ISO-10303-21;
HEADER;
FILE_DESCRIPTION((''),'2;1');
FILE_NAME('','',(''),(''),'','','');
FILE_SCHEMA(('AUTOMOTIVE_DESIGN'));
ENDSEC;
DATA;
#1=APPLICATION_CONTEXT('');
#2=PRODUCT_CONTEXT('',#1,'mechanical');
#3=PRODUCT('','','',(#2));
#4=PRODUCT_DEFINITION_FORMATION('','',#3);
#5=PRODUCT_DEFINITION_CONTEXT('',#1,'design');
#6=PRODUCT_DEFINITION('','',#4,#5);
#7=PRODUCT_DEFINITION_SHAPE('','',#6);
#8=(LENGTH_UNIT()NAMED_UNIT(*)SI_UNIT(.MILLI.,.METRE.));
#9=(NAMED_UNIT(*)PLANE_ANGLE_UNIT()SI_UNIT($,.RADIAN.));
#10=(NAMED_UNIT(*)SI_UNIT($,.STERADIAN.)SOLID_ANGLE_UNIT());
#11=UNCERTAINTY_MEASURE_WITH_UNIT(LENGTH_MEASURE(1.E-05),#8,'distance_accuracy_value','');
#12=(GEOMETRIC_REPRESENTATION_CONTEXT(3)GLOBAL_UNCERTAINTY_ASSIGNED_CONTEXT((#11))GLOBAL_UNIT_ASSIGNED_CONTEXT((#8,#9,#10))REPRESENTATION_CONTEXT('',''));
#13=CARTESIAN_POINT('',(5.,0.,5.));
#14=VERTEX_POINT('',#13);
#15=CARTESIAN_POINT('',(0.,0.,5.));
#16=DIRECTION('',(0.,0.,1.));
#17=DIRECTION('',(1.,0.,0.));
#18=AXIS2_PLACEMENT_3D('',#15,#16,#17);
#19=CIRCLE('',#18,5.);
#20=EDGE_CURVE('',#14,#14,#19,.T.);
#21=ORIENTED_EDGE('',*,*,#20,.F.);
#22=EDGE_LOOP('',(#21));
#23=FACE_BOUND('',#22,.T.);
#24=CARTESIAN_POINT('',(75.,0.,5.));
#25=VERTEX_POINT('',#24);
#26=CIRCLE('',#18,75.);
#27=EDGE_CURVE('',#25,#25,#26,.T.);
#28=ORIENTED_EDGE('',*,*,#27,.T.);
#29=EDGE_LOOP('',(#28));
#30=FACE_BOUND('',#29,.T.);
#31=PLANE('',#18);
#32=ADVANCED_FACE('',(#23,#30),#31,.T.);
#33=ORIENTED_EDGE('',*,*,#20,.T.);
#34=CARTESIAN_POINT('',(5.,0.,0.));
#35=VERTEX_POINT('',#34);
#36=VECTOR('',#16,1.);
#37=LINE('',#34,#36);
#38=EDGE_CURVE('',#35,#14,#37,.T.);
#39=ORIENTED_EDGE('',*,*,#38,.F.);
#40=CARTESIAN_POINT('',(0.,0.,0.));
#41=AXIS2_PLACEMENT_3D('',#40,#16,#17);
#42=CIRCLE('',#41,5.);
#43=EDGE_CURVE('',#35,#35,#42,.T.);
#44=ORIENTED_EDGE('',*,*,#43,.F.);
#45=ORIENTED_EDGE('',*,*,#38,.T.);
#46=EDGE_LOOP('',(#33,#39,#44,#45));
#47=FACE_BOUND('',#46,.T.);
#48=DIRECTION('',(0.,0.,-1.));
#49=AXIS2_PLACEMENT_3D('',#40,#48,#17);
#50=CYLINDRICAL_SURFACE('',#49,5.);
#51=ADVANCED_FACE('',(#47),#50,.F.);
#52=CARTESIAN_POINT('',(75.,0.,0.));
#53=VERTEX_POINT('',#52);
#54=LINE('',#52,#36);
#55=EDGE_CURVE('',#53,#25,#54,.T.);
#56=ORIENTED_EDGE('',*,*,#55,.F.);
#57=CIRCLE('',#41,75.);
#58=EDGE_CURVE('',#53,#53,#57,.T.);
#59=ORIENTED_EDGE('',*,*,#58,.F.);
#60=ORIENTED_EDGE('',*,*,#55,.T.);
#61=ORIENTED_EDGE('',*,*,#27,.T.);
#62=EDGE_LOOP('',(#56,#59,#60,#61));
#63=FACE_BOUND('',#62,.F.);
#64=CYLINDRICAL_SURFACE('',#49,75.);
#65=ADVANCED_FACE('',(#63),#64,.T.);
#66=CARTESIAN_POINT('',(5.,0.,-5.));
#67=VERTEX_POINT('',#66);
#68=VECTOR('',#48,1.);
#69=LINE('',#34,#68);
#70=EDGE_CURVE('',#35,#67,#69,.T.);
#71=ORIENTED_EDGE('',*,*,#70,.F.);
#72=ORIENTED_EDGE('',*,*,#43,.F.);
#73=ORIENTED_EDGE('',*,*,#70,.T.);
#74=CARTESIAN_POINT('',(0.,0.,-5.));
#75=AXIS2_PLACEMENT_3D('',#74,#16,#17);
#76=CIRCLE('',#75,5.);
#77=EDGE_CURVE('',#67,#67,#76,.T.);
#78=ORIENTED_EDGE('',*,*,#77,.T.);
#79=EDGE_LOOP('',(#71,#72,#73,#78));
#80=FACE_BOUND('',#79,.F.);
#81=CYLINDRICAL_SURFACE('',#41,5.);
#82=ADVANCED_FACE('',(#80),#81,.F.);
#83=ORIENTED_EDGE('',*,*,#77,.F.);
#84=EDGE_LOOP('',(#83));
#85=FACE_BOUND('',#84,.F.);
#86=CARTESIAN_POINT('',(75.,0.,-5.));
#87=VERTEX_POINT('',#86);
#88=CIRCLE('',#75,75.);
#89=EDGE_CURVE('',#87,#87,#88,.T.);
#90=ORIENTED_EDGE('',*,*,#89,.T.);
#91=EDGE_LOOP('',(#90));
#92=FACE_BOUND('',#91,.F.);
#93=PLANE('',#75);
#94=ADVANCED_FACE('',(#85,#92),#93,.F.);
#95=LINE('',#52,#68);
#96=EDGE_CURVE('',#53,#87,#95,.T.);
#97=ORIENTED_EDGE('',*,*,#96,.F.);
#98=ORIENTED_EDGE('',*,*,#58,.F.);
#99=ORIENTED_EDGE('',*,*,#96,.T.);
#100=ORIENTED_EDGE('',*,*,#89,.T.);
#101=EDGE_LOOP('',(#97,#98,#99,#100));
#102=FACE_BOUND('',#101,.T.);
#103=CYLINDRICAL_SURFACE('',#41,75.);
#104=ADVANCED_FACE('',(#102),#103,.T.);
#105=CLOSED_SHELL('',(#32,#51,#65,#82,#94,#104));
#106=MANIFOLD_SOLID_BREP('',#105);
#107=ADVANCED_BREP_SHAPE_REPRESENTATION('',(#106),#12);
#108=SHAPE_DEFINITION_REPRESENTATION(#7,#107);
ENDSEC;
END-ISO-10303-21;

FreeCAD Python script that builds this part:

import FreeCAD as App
import Part
import Sketcher
Q = App.Units.Quantity

doc = App.newDocument("Part")
body = doc.addObject("PartDesign::Body", "Body")

# Sketch on XY plane
sketch1 = body.newObject("Sketcher::SketchObject", "Sketch")
sketch1.AttachmentSupport = (doc.getObject("XY_Plane"), [""])
sketch1.MapMode = "FlatFace"
sketch1.addGeometry(Part.Circle(App.Vector(0, 0, 0), App.Vector(0, 0, 1), 75), False)
sketch1.addGeometry(Part.Circle(App.Vector(0, 0, 0), App.Vector(0, 0, 1), 5), False)
sketch1.addConstraint(Sketcher.Constraint("Coincident", 0, 3, -1, 1))
sketch1.addConstraint(Sketcher.Constraint("Coincident", 1, 3, -1, 1))
sketch1.addConstraint(Sketcher.Constraint("Diameter", 0, Q("150 mm")))
sketch1.addConstraint(Sketcher.Constraint("Diameter", 1, Q("10 mm")))
pad1 = body.newObject("PartDesign::Pad", "Pad")
pad1.Profile = sketch1
pad1.Length = 10
pad1.Midplane = True

doc.recompute()
